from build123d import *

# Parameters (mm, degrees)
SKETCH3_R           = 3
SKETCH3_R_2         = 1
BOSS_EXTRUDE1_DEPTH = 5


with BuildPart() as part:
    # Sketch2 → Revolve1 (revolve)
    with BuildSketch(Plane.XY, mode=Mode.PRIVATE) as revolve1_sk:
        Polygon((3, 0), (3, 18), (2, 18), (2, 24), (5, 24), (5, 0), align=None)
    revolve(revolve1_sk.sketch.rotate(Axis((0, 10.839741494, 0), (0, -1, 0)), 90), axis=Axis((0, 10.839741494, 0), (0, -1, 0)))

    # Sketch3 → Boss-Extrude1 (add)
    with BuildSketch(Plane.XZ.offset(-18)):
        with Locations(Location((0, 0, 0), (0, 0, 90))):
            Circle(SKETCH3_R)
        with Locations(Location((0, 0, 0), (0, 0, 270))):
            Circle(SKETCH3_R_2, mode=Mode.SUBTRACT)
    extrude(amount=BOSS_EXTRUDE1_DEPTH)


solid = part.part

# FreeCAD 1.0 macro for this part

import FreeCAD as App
import Part
import Sketcher
from FreeCAD import Vector

doc = App.newDocument("Part")
params = doc.addObject("Spreadsheet::Sheet", "Params")
for row, (alias, value) in enumerate([
    ("sketch1_width", "2 mm"),
    ("sketch1_width2", "3 mm"),
    ("sketch1_height", "18 mm"),
    ("sketch1_height2", "24 mm"),
    ("revolution_angle", "360 deg"),
    ("sketch2_diameter", "6 mm"),
    ("sketch2_diameter2", "2 mm"),
    ("pad1_length", "5 mm"),
], start=1):
    params.set(f"A{row}", alias)
    params.set(f"B{row}", "=" + value)
    params.setAlias(f"B{row}", alias)

body = doc.addObject("PartDesign::Body", "Body")

# Sketch on XY plane
sketch1 = body.newObject("Sketcher::SketchObject", "Sketch")
sketch1.AttachmentSupport = (doc.getObject("XY_Plane"), [""])
sketch1.MapMode = "FlatFace"
sketch1.addGeometry(Part.LineSegment(Vector(3, 18, 0), Vector(3, 0, 0)), False)
sketch1.addGeometry(Part.LineSegment(Vector(3, 0, 0), Vector(5, 0, 0)), False)
sketch1.addGeometry(Part.LineSegment(Vector(5, 0, 0), Vector(5, 24, 0)), False)
sketch1.addGeometry(Part.LineSegment(Vector(5, 24, 0), Vector(2, 24, 0)), False)
sketch1.addGeometry(Part.LineSegment(Vector(2, 24, 0), Vector(2, 18, 0)), False)
sketch1.addGeometry(Part.LineSegment(Vector(2, 18, 0), Vector(3, 18, 0)), False)
sketch1.addConstraint(Sketcher.Constraint("Coincident", 0, 2, 1, 1))
sketch1.addConstraint(Sketcher.Constraint("Coincident", 1, 2, 2, 1))
sketch1.addConstraint(Sketcher.Constraint("Coincident", 2, 2, 3, 1))
sketch1.addConstraint(Sketcher.Constraint("Coincident", 3, 2, 4, 1))
sketch1.addConstraint(Sketcher.Constraint("Coincident", 4, 2, 5, 1))
sketch1.addConstraint(Sketcher.Constraint("Coincident", 5, 2, 0, 1))
sketch1.addConstraint(Sketcher.Constraint("Vertical", 0))
sketch1.addConstraint(Sketcher.Constraint("Horizontal", 1))
sketch1.addConstraint(Sketcher.Constraint("Vertical", 2))
sketch1.addConstraint(Sketcher.Constraint("Horizontal", 3))
sketch1.addConstraint(Sketcher.Constraint("Vertical", 4))
sketch1.addConstraint(Sketcher.Constraint("Horizontal", 5))
sketch1.addConstraint(Sketcher.Constraint("PointOnObject", 0, 2, -1))
sketch1.addConstraint(Sketcher.Constraint("DistanceX", 1, 1, 1, 2, 2.0))
sketch1.addConstraint(Sketcher.Constraint("DistanceX", 3, 2, 3, 1, 3.0))
sketch1.addConstraint(Sketcher.Constraint("DistanceY", 0, 2, 0, 1, 18.0))
sketch1.addConstraint(Sketcher.Constraint("DistanceY", 2, 1, 2, 2, 24.0))
sketch1.addConstraint(Sketcher.Constraint("DistanceX", -1, 1, 0, 2, 3.0))
sketch1.setExpression("Constraints[13]", "Params.sketch1_width")
sketch1.setExpression("Constraints[14]", "Params.sketch1_width2")
sketch1.setExpression("Constraints[15]", "Params.sketch1_height")
sketch1.setExpression("Constraints[16]", "Params.sketch1_height2")
revolution = body.newObject("PartDesign::Revolution", "Revolution")
revolution.Profile = sketch1
revolution.ReferenceAxis = (sketch1, ["V_Axis"])
revolution.setExpression("Angle", "Params.revolution_angle")

# Sketch on XZ plane
sketch2 = body.newObject("Sketcher::SketchObject", "Sketch001")
sketch2.AttachmentSupport = (doc.getObject("XZ_Plane"), [""])
sketch2.MapMode = "FlatFace"
sketch2.AttachmentOffset = App.Placement(Vector(0, 0, -18), App.Rotation())
sketch2.addGeometry(Part.Circle(Vector(0, 0, 0), Vector(0, 0, 1), 3), False)
sketch2.addGeometry(Part.Circle(Vector(0, 0, 0), Vector(0, 0, 1), 1), False)
sketch2.addConstraint(Sketcher.Constraint("Coincident", 0, 3, -1, 1))
sketch2.addConstraint(Sketcher.Constraint("Coincident", 1, 3, -1, 1))
sketch2.addConstraint(Sketcher.Constraint("Diameter", 0, 6.0))
sketch2.addConstraint(Sketcher.Constraint("Diameter", 1, 2.0))
sketch2.setExpression("Constraints[2]", "Params.sketch2_diameter")
sketch2.setExpression("Constraints[3]", "Params.sketch2_diameter2")
pad1 = body.newObject("PartDesign::Pad", "Pad")
pad1.Profile = sketch2
pad1.setExpression("Length", "Params.pad1_length")

doc.recompute()
